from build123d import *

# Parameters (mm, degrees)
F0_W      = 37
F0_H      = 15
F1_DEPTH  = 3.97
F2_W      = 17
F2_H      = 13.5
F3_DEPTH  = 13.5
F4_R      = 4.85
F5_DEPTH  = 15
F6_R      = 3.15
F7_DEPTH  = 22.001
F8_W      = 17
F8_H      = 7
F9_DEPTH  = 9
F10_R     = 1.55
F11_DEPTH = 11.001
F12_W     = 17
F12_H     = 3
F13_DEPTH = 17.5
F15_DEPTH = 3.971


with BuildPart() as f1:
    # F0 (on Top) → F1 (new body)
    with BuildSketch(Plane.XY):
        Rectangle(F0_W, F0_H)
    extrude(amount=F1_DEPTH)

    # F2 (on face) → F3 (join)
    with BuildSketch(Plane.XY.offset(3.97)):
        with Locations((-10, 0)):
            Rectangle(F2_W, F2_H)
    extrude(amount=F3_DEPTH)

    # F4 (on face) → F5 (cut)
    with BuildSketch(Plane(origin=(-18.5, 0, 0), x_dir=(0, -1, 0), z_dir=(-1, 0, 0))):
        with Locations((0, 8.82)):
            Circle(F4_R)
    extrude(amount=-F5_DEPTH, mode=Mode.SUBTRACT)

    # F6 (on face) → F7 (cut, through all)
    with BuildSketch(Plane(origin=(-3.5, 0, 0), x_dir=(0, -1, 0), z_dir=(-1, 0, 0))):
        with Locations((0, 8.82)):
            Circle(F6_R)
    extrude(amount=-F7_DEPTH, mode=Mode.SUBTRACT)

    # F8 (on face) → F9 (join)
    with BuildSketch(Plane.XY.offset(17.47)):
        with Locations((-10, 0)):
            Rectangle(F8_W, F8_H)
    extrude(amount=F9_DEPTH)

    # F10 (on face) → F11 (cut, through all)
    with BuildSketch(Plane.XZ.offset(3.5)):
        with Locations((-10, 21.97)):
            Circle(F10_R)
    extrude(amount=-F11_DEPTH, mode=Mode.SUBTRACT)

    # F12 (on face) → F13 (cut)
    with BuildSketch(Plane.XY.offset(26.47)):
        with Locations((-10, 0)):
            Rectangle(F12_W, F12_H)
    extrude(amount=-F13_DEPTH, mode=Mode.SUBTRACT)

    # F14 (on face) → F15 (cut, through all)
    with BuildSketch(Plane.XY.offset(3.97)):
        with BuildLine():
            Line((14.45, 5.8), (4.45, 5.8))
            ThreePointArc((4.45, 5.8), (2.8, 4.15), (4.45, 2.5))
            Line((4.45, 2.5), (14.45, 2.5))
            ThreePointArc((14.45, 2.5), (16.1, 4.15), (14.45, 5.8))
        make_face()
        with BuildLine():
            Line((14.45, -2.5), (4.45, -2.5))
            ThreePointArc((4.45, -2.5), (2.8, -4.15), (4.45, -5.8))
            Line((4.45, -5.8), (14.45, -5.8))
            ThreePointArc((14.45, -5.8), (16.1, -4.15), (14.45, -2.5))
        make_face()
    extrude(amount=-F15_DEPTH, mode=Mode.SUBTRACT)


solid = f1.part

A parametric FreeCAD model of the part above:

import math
import FreeCAD as App
import Part
import Sketcher

V = App.Vector
Q = App.Units.Quantity


def add_polygon(sketch, points):
    """Adds a closed chain of lines whose ends are joined by coincident constraints."""
    first, n = sketch.GeometryCount, len(points)
    for a, b in zip(points, points[1:] + points[:1]):
        sketch.addGeometry(Part.LineSegment(App.Vector(*a, 0), App.Vector(*b, 0)), False)
    for i in range(n):
        sketch.addConstraint(Sketcher.Constraint("Coincident", first + i, 2, first + (i + 1) % n, 1))

doc = App.newDocument("Part")
body = doc.addObject("PartDesign::Body", "Body")

# Sketch on XY plane
sketch1 = body.newObject("Sketcher::SketchObject", "Sketch")
sketch1.AttachmentSupport = (doc.getObject("XY_Plane"), [""])
sketch1.MapMode = "FlatFace"
add_polygon(sketch1, [(-18, 8), (-18, -8), (18, -8), (18, 8)])  # lines 0-3
sketch1.addConstraint(Sketcher.Constraint("Vertical", 0))
sketch1.addConstraint(Sketcher.Constraint("Horizontal", 1))
sketch1.addConstraint(Sketcher.Constraint("Vertical", 2))
sketch1.addConstraint(Sketcher.Constraint("Horizontal", 3))
sketch1.addConstraint(Sketcher.Constraint("Symmetric", 0, 2, 2, 2, -1, 1))
sketch1.addConstraint(Sketcher.Constraint("DistanceX", 1, 1, 1, 2, Q("37 mm")))
sketch1.addConstraint(Sketcher.Constraint("DistanceY", 0, 2, 0, 1, Q("15 mm")))
pad1 = body.newObject("PartDesign::Pad", "Pad")
pad1.Profile = sketch1
pad1.Length = 3.97

# Sketch on XY plane
sketch2 = body.newObject("Sketcher::SketchObject", "Sketch001")
sketch2.AttachmentSupport = (doc.getObject("XY_Plane"), [""])
sketch2.MapMode = "FlatFace"
sketch2.AttachmentOffset = App.Placement(V(0, 0, 3.97), App.Rotation())
add_polygon(sketch2, [(-18, 7), (-18, -7), (-2, -7), (-2, 7)])  # lines 0-3
sketch2.addConstraint(Sketcher.Constraint("Vertical", 0))
sketch2.addConstraint(Sketcher.Constraint("Horizontal", 1))
sketch2.addConstraint(Sketcher.Constraint("Vertical", 2))
sketch2.addConstraint(Sketcher.Constraint("Horizontal", 3))
sketch2.addConstraint(Sketcher.Constraint("DistanceX", 1, 1, 1, 2, Q("17 mm")))
sketch2.addConstraint(Sketcher.Constraint("DistanceY", 0, 2, 0, 1, Q("13.5 mm")))
sketch2.addConstraint(Sketcher.Constraint("DistanceX", 0, 2, -1, 1, Q("18.5 mm")))
sketch2.addConstraint(Sketcher.Constraint("DistanceY", 0, 2, -1, 1, Q("6.75 mm")))
pad2 = body.newObject("PartDesign::Pad", "Pad001")
pad2.Profile = sketch2
pad2.Length = 13.5

# Sketch on YZ plane
sketch3 = body.newObject("Sketcher::SketchObject", "Sketch002")
sketch3.AttachmentSupport = (doc.getObject("YZ_Plane"), [""])
sketch3.MapMode = "FlatFace"
sketch3.AttachmentOffset = App.Placement(V(0, 0, -18.5), App.Rotation())
sketch3.addGeometry(Part.Circle(V(0, 8.8, 0), V(0, 0, 1), 4.8), False)
sketch3.addConstraint(Sketcher.Constraint("PointOnObject", 0, 3, -2))
sketch3.addConstraint(Sketcher.Constraint("Diameter", 0, Q("9.7 mm")))
sketch3.addConstraint(Sketcher.Constraint("DistanceY", -1, 1, 0, 3, Q("8.82 mm")))
pocket1 = body.newObject("PartDesign::Pocket", "Pocket")
pocket1.Profile = sketch3
pocket1.Length = 15
pocket1.Reversed = True

# Sketch on YZ plane
sketch4 = body.newObject("Sketcher::SketchObject", "Sketch003")
sketch4.AttachmentSupport = (doc.getObject("YZ_Plane"), [""])
sketch4.MapMode = "FlatFace"
sketch4.AttachmentOffset = App.Placement(V(0, 0, -3.5), App.Rotation())
sketch4.addGeometry(Part.Circle(V(0, 8.8, 0), V(0, 0, 1), 3.1), False)
sketch4.addConstraint(Sketcher.Constraint("PointOnObject", 0, 3, -2))
sketch4.addConstraint(Sketcher.Constraint("Diameter", 0, Q("6.3 mm")))
sketch4.addConstraint(Sketcher.Constraint("DistanceY", -1, 1, 0, 3, Q("8.82 mm")))
pocket2 = body.newObject("PartDesign::Pocket", "Pocket001")
pocket2.Profile = sketch4
pocket2.Type = "ThroughAll"
pocket2.Reversed = True

# Sketch on XY plane
sketch5 = body.newObject("Sketcher::SketchObject", "Sketch004")
sketch5.AttachmentSupport = (doc.getObject("XY_Plane"), [""])
sketch5.MapMode = "FlatFace"
sketch5.AttachmentOffset = App.Placement(V(0, 0, 17.47), App.Rotation())
add_polygon(sketch5, [(-18, 4), (-18, -4), (-2, -4), (-2, 4)])  # lines 0-3
sketch5.addConstraint(Sketcher.Constraint("Vertical", 0))
sketch5.addConstraint(Sketcher.Constraint("Horizontal", 1))
sketch5.addConstraint(Sketcher.Constraint("Vertical", 2))
sketch5.addConstraint(Sketcher.Constraint("Horizontal", 3))
sketch5.addConstraint(Sketcher.Constraint("DistanceX", 1, 1, 1, 2, Q("17 mm")))
sketch5.addConstraint(Sketcher.Constraint("DistanceY", 0, 2, 0, 1, Q("7 mm")))
sketch5.addConstraint(Sketcher.Constraint("DistanceX", 0, 2, -1, 1, Q("18.5 mm")))
sketch5.addConstraint(Sketcher.Constraint("DistanceY", 0, 2, -1, 1, Q("3.5 mm")))
pad3 = body.newObject("PartDesign::Pad", "Pad002")
pad3.Profile = sketch5
pad3.Length = 9

# Sketch on XZ plane
sketch6 = body.newObject("Sketcher::SketchObject", "Sketch005")
sketch6.AttachmentSupport = (doc.getObject("XZ_Plane"), [""])
sketch6.MapMode = "FlatFace"
sketch6.AttachmentOffset = App.Placement(V(0, 0, 3.5), App.Rotation())
sketch6.addGeometry(Part.Circle(V(-10, 22, 0), V(0, 0, 1), 1.6), False)
sketch6.addConstraint(Sketcher.Constraint("Diameter", 0, Q("3.1 mm")))
sketch6.addConstraint(Sketcher.Constraint("DistanceX", 0, 3, -1, 1, Q("10 mm")))
sketch6.addConstraint(Sketcher.Constraint("DistanceY", -1, 1, 0, 3, Q("21.97 mm")))
pocket3 = body.newObject("PartDesign::Pocket", "Pocket002")
pocket3.Profile = sketch6
pocket3.Type = "ThroughAll"

# Sketch on XY plane
sketch7 = body.newObject("Sketcher::SketchObject", "Sketch006")
sketch7.AttachmentSupport = (doc.getObject("XY_Plane"), [""])
sketch7.MapMode = "FlatFace"
sketch7.AttachmentOffset = App.Placement(V(0, 0, 26.47), App.Rotation())
add_polygon(sketch7, [(-18.5, 1.5), (-18.5, -1.5), (-1.5, -1.5), (-1.5, 1.5)])  # lines 0-3
sketch7.addConstraint(Sketcher.Constraint("Vertical", 0))
sketch7.addConstraint(Sketcher.Constraint("Horizontal", 1))
sketch7.addConstraint(Sketcher.Constraint("Vertical", 2))
sketch7.addConstraint(Sketcher.Constraint("Horizontal", 3))
sketch7.addConstraint(Sketcher.Constraint("DistanceX", 1, 1, 1, 2, Q("17 mm")))
sketch7.addConstraint(Sketcher.Constraint("DistanceY", 0, 2, 0, 1, Q("3 mm")))
sketch7.addConstraint(Sketcher.Constraint("DistanceX", 0, 2, -1, 1, Q("18.5 mm")))
sketch7.addConstraint(Sketcher.Constraint("DistanceY", 0, 2, -1, 1, Q("1.5 mm")))
pocket4 = body.newObject("PartDesign::Pocket", "Pocket003")
pocket4.Profile = sketch7
pocket4.Length = 17.5

# Sketch on XY plane
sketch8 = body.newObject("Sketcher::SketchObject", "Sketch007")
sketch8.AttachmentSupport = (doc.getObject("XY_Plane"), [""])
sketch8.MapMode = "FlatFace"
sketch8.AttachmentOffset = App.Placement(V(0, 0, 3.97), App.Rotation())
sketch8.addGeometry(Part.LineSegment(V(14.4, 5.8, 0), V(4.5, 5.8, 0)), False)
sketch8.addGeometry(Part.ArcOfCircle(Part.Circle(V(4.5, 4.2, 0), V(0, 0, 1), 1.6), math.radians(90), math.radians(270)), False)
sketch8.addGeometry(Part.LineSegment(V(4.5, 2.5, 0), V(14.4, 2.5, 0)), False)
sketch8.addGeometry(Part.ArcOfCircle(Part.Circle(V(14.4, 4.2, 0), V(0, 0, 1), 1.6), math.radians(-90), math.radians(90)), False)
sketch8.addGeometry(Part.LineSegment(V(14.4, -2.5, 0), V(4.5, -2.5, 0)), False)
sketch8.addGeometry(Part.ArcOfCircle(Part.Circle(V(4.5, -4.2, 0), V(0, 0, 1), 1.6), math.radians(90), math.radians(270)), False)
sketch8.addGeometry(Part.LineSegment(V(4.5, -5.8, 0), V(14.4, -5.8, 0)), False)
sketch8.addGeometry(Part.ArcOfCircle(Part.Circle(V(14.4, -4.2, 0), V(0, 0, 1), 1.6), math.radians(-90), math.radians(90)), False)
sketch8.addConstraint(Sketcher.Constraint("Tangent", 0, 2, 1, 1))
sketch8.addConstraint(Sketcher.Constraint("Tangent", 1, 2, 2, 1))
sketch8.addConstraint(Sketcher.Constraint("Tangent", 2, 2, 3, 1))
sketch8.addConstraint(Sketcher.Constraint("Tangent", 3, 2, 0, 1))
sketch8.addConstraint(Sketcher.Constraint("Tangent", 4, 2, 5, 1))
sketch8.addConstraint(Sketcher.Constraint("Tangent", 5, 2, 6, 1))
sketch8.addConstraint(Sketcher.Constraint("Tangent", 6, 2, 7, 1))
sketch8.addConstraint(Sketcher.Constraint("Tangent", 7, 2, 4, 1))
sketch8.addConstraint(Sketcher.Constraint("Horizontal", 0))
sketch8.addConstraint(Sketcher.Constraint("Horizontal", 2))
sketch8.addConstraint(Sketcher.Constraint("Horizontal", 4))
sketch8.addConstraint(Sketcher.Constraint("Horizontal", 6))
sketch8.addConstraint(Sketcher.Constraint("Equal", 3, 5))
sketch8.addConstraint(Sketcher.Constraint("Symmetric", 1, 3, 5, 3, -1))
sketch8.addConstraint(Sketcher.Constraint("Vertical", 3, 3, 7, 3))
sketch8.addConstraint(Sketcher.Constraint("DistanceX", 0, 2, 0, 1, Q("10 mm")))
sketch8.addConstraint(Sketcher.Constraint("Radius", 1, Q("1.65 mm")))
sketch8.addConstraint(Sketcher.Constraint("DistanceY", 4, 2, 1, 2, Q("5 mm")))
sketch8.addConstraint(Sketcher.Constraint("DistanceX", -1, 1, 1, 3, Q("4.45 mm")))
pocket5 = body.newObject("PartDesign::Pocket", "Pocket004")
pocket5.Profile = sketch8
pocket5.Type = "ThroughAll"

doc.recompute()
